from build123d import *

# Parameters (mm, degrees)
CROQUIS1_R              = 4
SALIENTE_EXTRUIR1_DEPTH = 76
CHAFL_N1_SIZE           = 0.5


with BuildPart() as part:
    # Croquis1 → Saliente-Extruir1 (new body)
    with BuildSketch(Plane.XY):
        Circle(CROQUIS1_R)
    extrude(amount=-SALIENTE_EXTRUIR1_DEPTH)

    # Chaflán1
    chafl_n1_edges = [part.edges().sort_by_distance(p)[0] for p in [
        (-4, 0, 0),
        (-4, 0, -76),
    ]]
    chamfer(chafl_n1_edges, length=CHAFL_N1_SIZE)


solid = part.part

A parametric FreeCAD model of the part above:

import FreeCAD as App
import Part
import Sketcher


def edges_at(feature, points):
    """Names of the edges that pass closest to the given points."""
    edges = feature.Shape.Edges
    near = lambda p: min(range(len(edges)), key=lambda i: edges[i].distToShape(Part.Vertex(*p))[0])
    return sorted({f"Edge{near(p) + 1}" for p in points})

doc = App.newDocument("Part")
body = doc.addObject("PartDesign::Body", "Body")

sketch1 = body.newObject("Sketcher::SketchObject", "Sketch")
sketch1.AttachmentSupport = (doc.getObject("XY_Plane"), [""])
sketch1.MapMode = "FlatFace"
sketch1.addGeometry(Part.Circle(App.Vector(0, 0, 0), App.Vector(0, 0, 1), 4), False)
sketch1.addConstraint([
    Sketcher.Constraint("Coincident", 0, 3, -1, 1),
    Sketcher.Constraint("Diameter", 0, 8.0),
])
pad1 = body.newObject("PartDesign::Pad", "Pad")
pad1.Profile = sketch1
pad1.Length = 76
pad1.Reversed = True
doc.recompute()

chamfer = body.newObject("PartDesign::Chamfer", "Chamfer")
chamfer.Base = (pad1, edges_at(pad1, [(-4, 0, 0), (-4, 0, -76)]))
chamfer.Size = 0.5

doc.recompute()
